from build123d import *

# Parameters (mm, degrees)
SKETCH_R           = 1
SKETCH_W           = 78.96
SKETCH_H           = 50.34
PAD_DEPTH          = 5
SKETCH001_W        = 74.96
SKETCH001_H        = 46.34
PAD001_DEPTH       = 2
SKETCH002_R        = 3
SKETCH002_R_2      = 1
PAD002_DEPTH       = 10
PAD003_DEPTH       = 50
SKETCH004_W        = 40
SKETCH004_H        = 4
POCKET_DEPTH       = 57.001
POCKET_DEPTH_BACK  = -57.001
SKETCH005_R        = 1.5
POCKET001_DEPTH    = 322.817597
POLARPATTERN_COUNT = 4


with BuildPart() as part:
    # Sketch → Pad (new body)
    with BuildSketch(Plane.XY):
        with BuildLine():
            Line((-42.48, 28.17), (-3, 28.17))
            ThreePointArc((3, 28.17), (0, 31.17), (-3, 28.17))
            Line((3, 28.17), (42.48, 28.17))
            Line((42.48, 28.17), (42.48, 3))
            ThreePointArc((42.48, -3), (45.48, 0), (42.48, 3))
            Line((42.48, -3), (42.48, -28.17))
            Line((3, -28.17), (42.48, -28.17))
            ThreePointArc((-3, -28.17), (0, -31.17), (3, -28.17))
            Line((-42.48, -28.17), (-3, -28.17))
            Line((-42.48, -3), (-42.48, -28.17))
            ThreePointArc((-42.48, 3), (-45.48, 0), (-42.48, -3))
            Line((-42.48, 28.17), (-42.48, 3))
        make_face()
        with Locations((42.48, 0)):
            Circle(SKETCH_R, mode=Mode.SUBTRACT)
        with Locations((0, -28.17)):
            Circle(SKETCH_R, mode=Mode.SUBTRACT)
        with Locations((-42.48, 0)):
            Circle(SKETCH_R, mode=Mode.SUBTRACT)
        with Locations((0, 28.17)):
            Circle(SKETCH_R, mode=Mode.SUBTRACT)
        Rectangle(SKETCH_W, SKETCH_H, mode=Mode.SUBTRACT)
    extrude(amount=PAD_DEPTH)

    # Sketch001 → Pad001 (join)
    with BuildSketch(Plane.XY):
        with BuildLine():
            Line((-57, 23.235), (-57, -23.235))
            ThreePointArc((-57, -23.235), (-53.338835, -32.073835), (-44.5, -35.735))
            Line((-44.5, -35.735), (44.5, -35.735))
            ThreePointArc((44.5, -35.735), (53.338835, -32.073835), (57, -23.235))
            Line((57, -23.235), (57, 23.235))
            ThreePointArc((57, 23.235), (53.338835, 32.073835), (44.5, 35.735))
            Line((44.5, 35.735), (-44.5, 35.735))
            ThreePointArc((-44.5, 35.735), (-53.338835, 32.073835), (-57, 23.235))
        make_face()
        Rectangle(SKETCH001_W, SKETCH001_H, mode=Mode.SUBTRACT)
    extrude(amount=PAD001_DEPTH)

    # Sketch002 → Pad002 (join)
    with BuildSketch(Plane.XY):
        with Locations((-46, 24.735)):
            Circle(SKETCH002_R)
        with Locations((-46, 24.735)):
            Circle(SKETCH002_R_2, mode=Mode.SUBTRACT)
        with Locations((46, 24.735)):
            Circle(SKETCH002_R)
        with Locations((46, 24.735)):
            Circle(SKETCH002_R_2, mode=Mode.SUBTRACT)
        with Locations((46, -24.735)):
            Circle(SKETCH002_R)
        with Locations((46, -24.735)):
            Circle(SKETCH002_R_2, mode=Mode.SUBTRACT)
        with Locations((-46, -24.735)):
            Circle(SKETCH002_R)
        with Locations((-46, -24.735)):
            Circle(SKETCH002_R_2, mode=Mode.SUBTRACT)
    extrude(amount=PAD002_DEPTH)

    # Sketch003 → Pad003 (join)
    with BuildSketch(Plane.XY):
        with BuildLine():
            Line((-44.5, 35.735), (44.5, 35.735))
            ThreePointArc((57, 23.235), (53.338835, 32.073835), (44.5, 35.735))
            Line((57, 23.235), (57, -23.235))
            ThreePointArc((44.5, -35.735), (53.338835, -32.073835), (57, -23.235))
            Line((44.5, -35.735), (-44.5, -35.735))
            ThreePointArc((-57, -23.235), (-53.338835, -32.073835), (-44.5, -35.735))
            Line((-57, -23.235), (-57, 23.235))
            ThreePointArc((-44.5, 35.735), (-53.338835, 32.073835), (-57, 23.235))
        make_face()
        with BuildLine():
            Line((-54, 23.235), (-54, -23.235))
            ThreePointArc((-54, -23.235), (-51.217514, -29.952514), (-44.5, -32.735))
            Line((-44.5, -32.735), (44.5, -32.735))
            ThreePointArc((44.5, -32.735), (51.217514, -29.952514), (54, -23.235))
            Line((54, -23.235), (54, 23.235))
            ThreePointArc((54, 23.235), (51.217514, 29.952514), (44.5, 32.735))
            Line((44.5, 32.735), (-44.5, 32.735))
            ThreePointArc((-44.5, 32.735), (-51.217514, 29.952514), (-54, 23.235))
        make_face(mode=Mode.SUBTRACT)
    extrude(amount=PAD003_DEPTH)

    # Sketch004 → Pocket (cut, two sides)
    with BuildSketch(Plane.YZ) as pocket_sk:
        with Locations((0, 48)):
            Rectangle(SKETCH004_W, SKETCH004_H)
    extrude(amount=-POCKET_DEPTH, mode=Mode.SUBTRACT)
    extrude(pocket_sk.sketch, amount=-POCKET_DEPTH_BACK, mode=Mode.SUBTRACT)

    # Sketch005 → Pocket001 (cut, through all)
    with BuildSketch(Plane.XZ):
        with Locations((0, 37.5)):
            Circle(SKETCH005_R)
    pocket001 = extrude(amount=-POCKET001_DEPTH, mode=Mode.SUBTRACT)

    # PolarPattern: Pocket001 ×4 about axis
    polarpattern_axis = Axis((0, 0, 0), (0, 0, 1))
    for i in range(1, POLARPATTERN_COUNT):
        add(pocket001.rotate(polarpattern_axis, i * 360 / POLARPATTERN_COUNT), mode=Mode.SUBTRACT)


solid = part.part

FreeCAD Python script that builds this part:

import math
import FreeCAD as App
import Part
import Sketcher
Q = App.Units.Quantity


def add_polygon(sketch, points):
    """Adds a closed chain of lines whose ends are joined by coincident constraints."""
    first, n = sketch.GeometryCount, len(points)
    for a, b in zip(points, points[1:] + points[:1]):
        sketch.addGeometry(Part.LineSegment(App.Vector(*a, 0), App.Vector(*b, 0)), False)
    for i in range(n):
        sketch.addConstraint(Sketcher.Constraint("Coincident", first + i, 2, first + (i + 1) % n, 1))

doc = App.newDocument("Part")
body = doc.addObject("PartDesign::Body", "Body")

# Sketch on XY plane
sketch1 = body.newObject("Sketcher::SketchObject", "Sketch")
sketch1.AttachmentSupport = (doc.getObject("XY_Plane"), [""])
sketch1.MapMode = "FlatFace"
sketch1.addGeometry(Part.LineSegment(App.Vector(-3, 28.2, 0), App.Vector(-42.5, 28.2, 0)), False)  # 0
sketch1.addGeometry(Part.LineSegment(App.Vector(-42.5, 28.2, 0), App.Vector(-42.5, 3, 0)), False)  # 1
sketch1.addGeometry(Part.ArcOfCircle(Part.Circle(App.Vector(-42.5, 0, 0), App.Vector(0, 0, 1), 3), math.radians(90), math.radians(270)), False)  # 2
sketch1.addGeometry(Part.LineSegment(App.Vector(-42.5, -3, 0), App.Vector(-42.5, -28.2, 0)), False)  # 3
sketch1.addGeometry(Part.LineSegment(App.Vector(-42.5, -28.2, 0), App.Vector(-3, -28.2, 0)), False)  # 4
sketch1.addGeometry(Part.ArcOfCircle(Part.Circle(App.Vector(0, -28.2, 0), App.Vector(0, 0, 1), 3), math.radians(180), math.radians(360)), False)  # 5
sketch1.addGeometry(Part.LineSegment(App.Vector(3, -28.2, 0), App.Vector(42.5, -28.2, 0)), False)  # 6
sketch1.addGeometry(Part.LineSegment(App.Vector(42.5, -28.2, 0), App.Vector(42.5, -3, 0)), False)  # 7
sketch1.addGeometry(Part.ArcOfCircle(Part.Circle(App.Vector(42.5, 0, 0), App.Vector(0, 0, 1), 3), math.radians(-90), math.radians(90)), False)  # 8
sketch1.addGeometry(Part.LineSegment(App.Vector(42.5, 3, 0), App.Vector(42.5, 28.2, 0)), False)  # 9
sketch1.addGeometry(Part.LineSegment(App.Vector(42.5, 28.2, 0), App.Vector(3, 28.2, 0)), False)  # 10
sketch1.addGeometry(Part.ArcOfCircle(Part.Circle(App.Vector(0, 28.2, 0), App.Vector(0, 0, 1), 3), math.radians(0), math.radians(180)), False)  # 11
sketch1.addGeometry(Part.Circle(App.Vector(0, -28.2, 0), App.Vector(0, 0, 1), 1), False)  # 12
sketch1.addGeometry(Part.Circle(App.Vector(42.5, 0, 0), App.Vector(0, 0, 1), 1), False)  # 13
add_polygon(sketch1, [(-39.5, -25.2), (-39.5, 25.2), (39.5, 25.2), (39.5, -25.2)])  # lines 14-17
sketch1.addGeometry(Part.Circle(App.Vector(-42.5, 0, 0), App.Vector(0, 0, 1), 1), False)  # 18
sketch1.addGeometry(Part.Circle(App.Vector(0, 28.2, 0), App.Vector(0, 0, 1), 1), False)  # 19
sketch1.addConstraint([
    Sketcher.Constraint("Coincident", 0, 2, 1, 1),
    Sketcher.Constraint("Coincident", 1, 2, 2, 1),
    Sketcher.Constraint("Coincident", 2, 2, 3, 1),
    Sketcher.Constraint("Coincident", 3, 2, 4, 1),
    Sketcher.Constraint("Coincident", 4, 2, 5, 1),
    Sketcher.Constraint("Coincident", 5, 2, 6, 1),
    Sketcher.Constraint("Coincident", 6, 2, 7, 1),
    Sketcher.Constraint("Coincident", 7, 2, 8, 1),
    Sketcher.Constraint("Coincident", 8, 2, 9, 1),
    Sketcher.Constraint("Coincident", 9, 2, 10, 1),
    Sketcher.Constraint("Coincident", 10, 2, 11, 1),
    Sketcher.Constraint("Coincident", 11, 2, 0, 1),
    Sketcher.Constraint("Horizontal", 0),
    Sketcher.Constraint("Vertical", 1),
    Sketcher.Constraint("Vertical", 3),
    Sketcher.Constraint("Horizontal", 4),
    Sketcher.Constraint("Horizontal", 6),
    Sketcher.Constraint("Vertical", 7),
    Sketcher.Constraint("Vertical", 9),
    Sketcher.Constraint("Horizontal", 10),
    Sketcher.Constraint("Vertical", 14),
    Sketcher.Constraint("Horizontal", 15),
    Sketcher.Constraint("Vertical", 16),
    Sketcher.Constraint("Horizontal", 17),
    Sketcher.Constraint("Coincident", 12, 3, 5, 3),
    Sketcher.Constraint("Coincident", 13, 3, 8, 3),
    Sketcher.Constraint("Coincident", 18, 3, 2, 3),
    Sketcher.Constraint("Coincident", 19, 3, 11, 3),
    Sketcher.Constraint("Equal", 2, 5),
    Sketcher.Constraint("Equal", 5, 8),
    Sketcher.Constraint("Equal", 8, 11),
    Sketcher.Constraint("Equal", 12, 13),
    Sketcher.Constraint("Equal", 13, 18),
    Sketcher.Constraint("Equal", 18, 19),
    Sketcher.Constraint("Symmetric", 2, 3, 8, 3, -1, 1),
    Sketcher.Constraint("Symmetric", 5, 3, 11, 3, -1, 1),
    Sketcher.Constraint("Symmetric", 0, 2, 6, 2, -1, 1),
    Sketcher.Constraint("Symmetric", 3, 2, 9, 2, -1, 1),
    Sketcher.Constraint("Symmetric", 14, 2, 16, 2, -1, 1),
    Sketcher.Constraint("Symmetric", 4, 2, 5, 2, -2),
    Sketcher.Constraint("Symmetric", 2, 2, 7, 2, -2),
    Sketcher.Constraint("Horizontal", 19, 3, 0, 2),
    Sketcher.Constraint("Vertical", 18, 3, 0, 2),
    Sketcher.Constraint("Diameter", 12, Q("2 mm")),
    Sketcher.Constraint("Radius", 2, Q("3 mm")),
    Sketcher.Constraint("DistanceX", 0, 2, 14, 2, Q("3 mm")),
    Sketcher.Constraint("DistanceY", 14, 2, 0, 2, Q("3 mm")),
    Sketcher.Constraint("DistanceX", 0, 2, 0, 1, Q("39.48 mm")),
    Sketcher.Constraint("DistanceY", 1, 2, 1, 1, Q("25.17 mm")),
])
pad1 = body.newObject("PartDesign::Pad", "Pad")
pad1.Profile = sketch1
pad1.Length = 5

# Sketch on XY plane
sketch2 = body.newObject("Sketcher::SketchObject", "Sketch001")
sketch2.AttachmentSupport = (doc.getObject("XY_Plane"), [""])
sketch2.MapMode = "FlatFace"
sketch2.addGeometry(Part.LineSegment(App.Vector(-57, 23, 0), App.Vector(-57, -23, 0)), False)  # 0
sketch2.addGeometry(Part.ArcOfCircle(Part.Circle(App.Vector(-45, -23, 0), App.Vector(0, 0, 1), 12), math.radians(180), math.radians(270)), False)  # 1
sketch2.addGeometry(Part.LineSegment(App.Vector(-44, -36, 0), App.Vector(44, -36, 0)), False)  # 2
sketch2.addGeometry(Part.ArcOfCircle(Part.Circle(App.Vector(45, -23, 0), App.Vector(0, 0, 1), 12), math.radians(-90), math.radians(0)), False)  # 3
sketch2.addGeometry(Part.LineSegment(App.Vector(57, -23, 0), App.Vector(57, 23, 0)), False)  # 4
sketch2.addGeometry(Part.ArcOfCircle(Part.Circle(App.Vector(45, 23, 0), App.Vector(0, 0, 1), 12), math.radians(0), math.radians(90)), False)  # 5
sketch2.addGeometry(Part.LineSegment(App.Vector(44, 36, 0), App.Vector(-44, 36, 0)), False)  # 6
sketch2.addGeometry(Part.ArcOfCircle(Part.Circle(App.Vector(-45, 23, 0), App.Vector(0, 0, 1), 12), math.radians(90), math.radians(180)), False)  # 7
add_polygon(sketch2, [(37, -23), (-37, -23), (-37, 23), (37, 23)])  # lines 8-11
sketch2.addConstraint([
    Sketcher.Constraint("Tangent", 0, 2, 1, 1),
    Sketcher.Constraint("Tangent", 1, 2, 2, 1),
    Sketcher.Constraint("Tangent", 2, 2, 3, 1),
    Sketcher.Constraint("Tangent", 3, 2, 4, 1),
    Sketcher.Constraint("Tangent", 4, 2, 5, 1),
    Sketcher.Constraint("Tangent", 5, 2, 6, 1),
    Sketcher.Constraint("Tangent", 6, 2, 7, 1),
    Sketcher.Constraint("Tangent", 7, 2, 0, 1),
    Sketcher.Constraint("Vertical", 0),
    Sketcher.Constraint("Horizontal", 2),
    Sketcher.Constraint("Vertical", 4),
    Sketcher.Constraint("Horizontal", 6),
    Sketcher.Constraint("Horizontal", 8),
    Sketcher.Constraint("Vertical", 9),
    Sketcher.Constraint("Horizontal", 10),
    Sketcher.Constraint("Vertical", 11),
    Sketcher.Constraint("Equal", 1, 3),
    Sketcher.Constraint("Equal", 3, 5),
    Sketcher.Constraint("Equal", 5, 7),
    Sketcher.Constraint("Symmetric", 1, 3, 5, 3, -1, 1),
    Sketcher.Constraint("Symmetric", 8, 2, 10, 2, -1, 1),
    Sketcher.Constraint("Radius", 1, Q("12.499999 mm")),
    Sketcher.Constraint("DistanceX", 2, 1, 2, 2, Q("89 mm")),
    Sketcher.Constraint("DistanceX", 8, 2, 8, 1, Q("74.96 mm")),
    Sketcher.Constraint("DistanceY", 0, 2, 0, 1, Q("46.47 mm")),
    Sketcher.Constraint("DistanceY", 9, 1, 9, 2, Q("46.34 mm")),
])
pad2 = body.newObject("PartDesign::Pad", "Pad001")
pad2.Profile = sketch2
pad2.Length = 2

# Sketch on XY plane
sketch3 = body.newObject("Sketcher::SketchObject", "Sketch002")
sketch3.AttachmentSupport = (doc.getObject("XY_Plane"), [""])
sketch3.MapMode = "FlatFace"
sketch3.addGeometry([
    Part.Circle(App.Vector(-46, 24.7, 0), App.Vector(0, 0, 1), 3),  # 0
    Part.Circle(App.Vector(-46, 24.7, 0), App.Vector(0, 0, 1), 1),  # 1
    Part.Circle(App.Vector(46, 24.7, 0), App.Vector(0, 0, 1), 3),  # 2
    Part.Circle(App.Vector(46, 24.7, 0), App.Vector(0, 0, 1), 1),  # 3
    Part.Circle(App.Vector(46, -24.7, 0), App.Vector(0, 0, 1), 3),  # 4
    Part.Circle(App.Vector(46, -24.7, 0), App.Vector(0, 0, 1), 1),  # 5
    Part.Circle(App.Vector(-46, -24.7, 0), App.Vector(0, 0, 1), 3),  # 6
    Part.Circle(App.Vector(-46, -24.7, 0), App.Vector(0, 0, 1), 1),  # 7
], False)
sketch3.addConstraint([
    Sketcher.Constraint("Coincident", 1, 3, 0, 3),
    Sketcher.Constraint("Coincident", 3, 3, 2, 3),
    Sketcher.Constraint("Coincident", 5, 3, 4, 3),
    Sketcher.Constraint("Coincident", 7, 3, 6, 3),
    Sketcher.Constraint("Equal", 0, 2),
    Sketcher.Constraint("Equal", 1, 3),
    Sketcher.Constraint("Equal", 2, 4),
    Sketcher.Constraint("Equal", 3, 5),
    Sketcher.Constraint("Equal", 4, 6),
    Sketcher.Constraint("Equal", 5, 7),
    Sketcher.Constraint("Symmetric", 0, 3, 4, 3, -1, 1),
    Sketcher.Constraint("Symmetric", 2, 3, 6, 3, -1, 1),
    Sketcher.Constraint("Symmetric", 0, 3, 2, 3, -2),
    Sketcher.Constraint("Diameter", 0, Q("6 mm")),
    Sketcher.Constraint("Diameter", 1, Q("2 mm")),
    Sketcher.Constraint("DistanceX", 0, 3, -1, 1, Q("46 mm")),
    Sketcher.Constraint("DistanceY", 4, 3, 2, 3, Q("49.47 mm")),
])
pad3 = body.newObject("PartDesign::Pad", "Pad002")
pad3.Profile = sketch3
pad3.Length = 10

# Sketch on XY plane
sketch4 = body.newObject("Sketcher::SketchObject", "Sketch003")
sketch4.AttachmentSupport = (doc.getObject("XY_Plane"), [""])
sketch4.MapMode = "FlatFace"
sketch4.addGeometry([
    Part.LineSegment(App.Vector(44, 36, 0), App.Vector(-44, 36, 0)),  # 0
    Part.ArcOfCircle(Part.Circle(App.Vector(-45, 23, 0), App.Vector(0, 0, 1), 12), math.radians(90), math.radians(180)),  # 1
    Part.LineSegment(App.Vector(-57, 23, 0), App.Vector(-57, -23, 0)),  # 2
    Part.ArcOfCircle(Part.Circle(App.Vector(-45, -23, 0), App.Vector(0, 0, 1), 12), math.radians(180), math.radians(270)),  # 3
    Part.LineSegment(App.Vector(-44, -36, 0), App.Vector(44, -36, 0)),  # 4
    Part.ArcOfCircle(Part.Circle(App.Vector(45, -23, 0), App.Vector(0, 0, 1), 12), math.radians(-90), math.radians(0)),  # 5
    Part.LineSegment(App.Vector(57, -23, 0), App.Vector(57, 23, 0)),  # 6
    Part.ArcOfCircle(Part.Circle(App.Vector(45, 23, 0), App.Vector(0, 0, 1), 12), math.radians(0), math.radians(90)),  # 7
    Part.ArcOfCircle(Part.Circle(App.Vector(-44, 23, 0), App.Vector(0, 0, 1), 10), math.radians(90), math.radians(180)),  # 8
    Part.LineSegment(App.Vector(-44, 33, 0), App.Vector(44, 33, 0)),  # 9
    Part.ArcOfCircle(Part.Circle(App.Vector(44, 23, 0), App.Vector(0, 0, 1), 10), math.radians(0), math.radians(90)),  # 10
    Part.LineSegment(App.Vector(54, 23, 0), App.Vector(54, -23, 0)),  # 11
    Part.ArcOfCircle(Part.Circle(App.Vector(44, -23, 0), App.Vector(0, 0, 1), 10), math.radians(-90), math.radians(0)),  # 12
    Part.LineSegment(App.Vector(44, -33, 0), App.Vector(-44, -33, 0)),  # 13
    Part.ArcOfCircle(Part.Circle(App.Vector(-44, -23, 0), App.Vector(0, 0, 1), 10), math.radians(-180), math.radians(-90)),  # 14
    Part.LineSegment(App.Vector(-54, -23, 0), App.Vector(-54, 23, 0)),  # 15
], False)
sketch4.addConstraint([
    Sketcher.Constraint("Tangent", 0, 2, 1, 1),
    Sketcher.Constraint("Tangent", 1, 2, 2, 1),
    Sketcher.Constraint("Tangent", 2, 2, 3, 1),
    Sketcher.Constraint("Tangent", 3, 2, 4, 1),
    Sketcher.Constraint("Tangent", 4, 2, 5, 1),
    Sketcher.Constraint("Tangent", 5, 2, 6, 1),
    Sketcher.Constraint("Tangent", 6, 2, 7, 1),
    Sketcher.Constraint("Tangent", 7, 2, 0, 1),
    Sketcher.Constraint("Tangent", 8, 1, 9, 1),
    Sketcher.Constraint("Tangent", 9, 2, 10, 2),
    Sketcher.Constraint("Tangent", 10, 1, 11, 1),
    Sketcher.Constraint("Tangent", 11, 2, 12, 2),
    Sketcher.Constraint("Tangent", 12, 1, 13, 1),
    Sketcher.Constraint("Tangent", 13, 2, 14, 2),
    Sketcher.Constraint("Tangent", 14, 1, 15, 1),
    Sketcher.Constraint("Tangent", 15, 2, 8, 2),
    Sketcher.Constraint("Horizontal", 0),
    Sketcher.Constraint("Vertical", 2),
    Sketcher.Constraint("Horizontal", 4),
    Sketcher.Constraint("Vertical", 6),
    Sketcher.Constraint("Horizontal", 9),
    Sketcher.Constraint("Vertical", 11),
    Sketcher.Constraint("Horizontal", 13),
    Sketcher.Constraint("Vertical", 15),
    Sketcher.Constraint("Coincident", 8, 3, 1, 3),
    Sketcher.Constraint("Coincident", 10, 3, 7, 3),
    Sketcher.Constraint("Coincident", 12, 3, 5, 3),
    Sketcher.Constraint("Equal", 1, 3),
    Sketcher.Constraint("Equal", 3, 5),
    Sketcher.Constraint("Equal", 5, 7),
    Sketcher.Constraint("Equal", 12, 14),
    Sketcher.Constraint("Symmetric", 1, 3, 5, 3, -1, 1),
    Sketcher.Constraint("Radius", 1, Q("12.499999 mm")),
    Sketcher.Constraint("Radius", 8, Q("9.500001 mm")),
    Sketcher.Constraint("DistanceX", 0, 2, 0, 1, Q("89 mm")),
    Sketcher.Constraint("DistanceY", 2, 2, 2, 1, Q("46.47 mm")),
])
pad4 = body.newObject("PartDesign::Pad", "Pad003")
pad4.Profile = sketch4
pad4.Length = 50

# Sketch on YZ plane
sketch5 = body.newObject("Sketcher::SketchObject", "Sketch004")
sketch5.AttachmentSupport = (doc.getObject("YZ_Plane"), [""])
sketch5.MapMode = "FlatFace"
add_polygon(sketch5, [(-20, 50), (-20, 46), (20, 46), (20, 50)])  # lines 0-3
sketch5.addConstraint([
    Sketcher.Constraint("Vertical", 0),
    Sketcher.Constraint("Horizontal", 1),
    Sketcher.Constraint("Vertical", 2),
    Sketcher.Constraint("Horizontal", 3),
    Sketcher.Constraint("DistanceX", 1, 1, 1, 2, Q("40 mm")),
    Sketcher.Constraint("DistanceY", 0, 2, 0, 1, Q("4 mm")),
    Sketcher.Constraint("DistanceX", 0, 2, -1, 1, Q("20 mm")),
    Sketcher.Constraint("DistanceY", -1, 1, 0, 2, Q("46 mm")),
])
pocket1 = body.newObject("PartDesign::Pocket", "Pocket")
pocket1.Profile = sketch5
pocket1.Type = "ThroughAll"
pocket1.Midplane = True

# Sketch on XZ plane
sketch6 = body.newObject("Sketcher::SketchObject", "Sketch005")
sketch6.AttachmentSupport = (doc.getObject("XZ_Plane"), [""])
sketch6.MapMode = "FlatFace"
sketch6.addGeometry(Part.Circle(App.Vector(0, 37.5, 0), App.Vector(0, 0, 1), 1.5), False)
sketch6.addConstraint([
    Sketcher.Constraint("PointOnObject", 0, 3, -2),
    Sketcher.Constraint("Diameter", 0, Q("3 mm")),
    Sketcher.Constraint("DistanceY", -1, 1, 0, 3, Q("37.5 mm")),
])
pocket2 = body.newObject("PartDesign::Pocket", "Pocket001")
pocket2.Profile = sketch6
pocket2.Type = "ThroughAll"
doc.recompute()

polarpattern = body.newObject("PartDesign::PolarPattern", "PolarPattern")
polarpattern.Originals = [pocket2]
polarpattern.Axis = (doc.getObject("Z_Axis"), [""])
polarpattern.Angle = 360
polarpattern.Occurrences = 4
body.Tip = polarpattern

doc.recompute()
